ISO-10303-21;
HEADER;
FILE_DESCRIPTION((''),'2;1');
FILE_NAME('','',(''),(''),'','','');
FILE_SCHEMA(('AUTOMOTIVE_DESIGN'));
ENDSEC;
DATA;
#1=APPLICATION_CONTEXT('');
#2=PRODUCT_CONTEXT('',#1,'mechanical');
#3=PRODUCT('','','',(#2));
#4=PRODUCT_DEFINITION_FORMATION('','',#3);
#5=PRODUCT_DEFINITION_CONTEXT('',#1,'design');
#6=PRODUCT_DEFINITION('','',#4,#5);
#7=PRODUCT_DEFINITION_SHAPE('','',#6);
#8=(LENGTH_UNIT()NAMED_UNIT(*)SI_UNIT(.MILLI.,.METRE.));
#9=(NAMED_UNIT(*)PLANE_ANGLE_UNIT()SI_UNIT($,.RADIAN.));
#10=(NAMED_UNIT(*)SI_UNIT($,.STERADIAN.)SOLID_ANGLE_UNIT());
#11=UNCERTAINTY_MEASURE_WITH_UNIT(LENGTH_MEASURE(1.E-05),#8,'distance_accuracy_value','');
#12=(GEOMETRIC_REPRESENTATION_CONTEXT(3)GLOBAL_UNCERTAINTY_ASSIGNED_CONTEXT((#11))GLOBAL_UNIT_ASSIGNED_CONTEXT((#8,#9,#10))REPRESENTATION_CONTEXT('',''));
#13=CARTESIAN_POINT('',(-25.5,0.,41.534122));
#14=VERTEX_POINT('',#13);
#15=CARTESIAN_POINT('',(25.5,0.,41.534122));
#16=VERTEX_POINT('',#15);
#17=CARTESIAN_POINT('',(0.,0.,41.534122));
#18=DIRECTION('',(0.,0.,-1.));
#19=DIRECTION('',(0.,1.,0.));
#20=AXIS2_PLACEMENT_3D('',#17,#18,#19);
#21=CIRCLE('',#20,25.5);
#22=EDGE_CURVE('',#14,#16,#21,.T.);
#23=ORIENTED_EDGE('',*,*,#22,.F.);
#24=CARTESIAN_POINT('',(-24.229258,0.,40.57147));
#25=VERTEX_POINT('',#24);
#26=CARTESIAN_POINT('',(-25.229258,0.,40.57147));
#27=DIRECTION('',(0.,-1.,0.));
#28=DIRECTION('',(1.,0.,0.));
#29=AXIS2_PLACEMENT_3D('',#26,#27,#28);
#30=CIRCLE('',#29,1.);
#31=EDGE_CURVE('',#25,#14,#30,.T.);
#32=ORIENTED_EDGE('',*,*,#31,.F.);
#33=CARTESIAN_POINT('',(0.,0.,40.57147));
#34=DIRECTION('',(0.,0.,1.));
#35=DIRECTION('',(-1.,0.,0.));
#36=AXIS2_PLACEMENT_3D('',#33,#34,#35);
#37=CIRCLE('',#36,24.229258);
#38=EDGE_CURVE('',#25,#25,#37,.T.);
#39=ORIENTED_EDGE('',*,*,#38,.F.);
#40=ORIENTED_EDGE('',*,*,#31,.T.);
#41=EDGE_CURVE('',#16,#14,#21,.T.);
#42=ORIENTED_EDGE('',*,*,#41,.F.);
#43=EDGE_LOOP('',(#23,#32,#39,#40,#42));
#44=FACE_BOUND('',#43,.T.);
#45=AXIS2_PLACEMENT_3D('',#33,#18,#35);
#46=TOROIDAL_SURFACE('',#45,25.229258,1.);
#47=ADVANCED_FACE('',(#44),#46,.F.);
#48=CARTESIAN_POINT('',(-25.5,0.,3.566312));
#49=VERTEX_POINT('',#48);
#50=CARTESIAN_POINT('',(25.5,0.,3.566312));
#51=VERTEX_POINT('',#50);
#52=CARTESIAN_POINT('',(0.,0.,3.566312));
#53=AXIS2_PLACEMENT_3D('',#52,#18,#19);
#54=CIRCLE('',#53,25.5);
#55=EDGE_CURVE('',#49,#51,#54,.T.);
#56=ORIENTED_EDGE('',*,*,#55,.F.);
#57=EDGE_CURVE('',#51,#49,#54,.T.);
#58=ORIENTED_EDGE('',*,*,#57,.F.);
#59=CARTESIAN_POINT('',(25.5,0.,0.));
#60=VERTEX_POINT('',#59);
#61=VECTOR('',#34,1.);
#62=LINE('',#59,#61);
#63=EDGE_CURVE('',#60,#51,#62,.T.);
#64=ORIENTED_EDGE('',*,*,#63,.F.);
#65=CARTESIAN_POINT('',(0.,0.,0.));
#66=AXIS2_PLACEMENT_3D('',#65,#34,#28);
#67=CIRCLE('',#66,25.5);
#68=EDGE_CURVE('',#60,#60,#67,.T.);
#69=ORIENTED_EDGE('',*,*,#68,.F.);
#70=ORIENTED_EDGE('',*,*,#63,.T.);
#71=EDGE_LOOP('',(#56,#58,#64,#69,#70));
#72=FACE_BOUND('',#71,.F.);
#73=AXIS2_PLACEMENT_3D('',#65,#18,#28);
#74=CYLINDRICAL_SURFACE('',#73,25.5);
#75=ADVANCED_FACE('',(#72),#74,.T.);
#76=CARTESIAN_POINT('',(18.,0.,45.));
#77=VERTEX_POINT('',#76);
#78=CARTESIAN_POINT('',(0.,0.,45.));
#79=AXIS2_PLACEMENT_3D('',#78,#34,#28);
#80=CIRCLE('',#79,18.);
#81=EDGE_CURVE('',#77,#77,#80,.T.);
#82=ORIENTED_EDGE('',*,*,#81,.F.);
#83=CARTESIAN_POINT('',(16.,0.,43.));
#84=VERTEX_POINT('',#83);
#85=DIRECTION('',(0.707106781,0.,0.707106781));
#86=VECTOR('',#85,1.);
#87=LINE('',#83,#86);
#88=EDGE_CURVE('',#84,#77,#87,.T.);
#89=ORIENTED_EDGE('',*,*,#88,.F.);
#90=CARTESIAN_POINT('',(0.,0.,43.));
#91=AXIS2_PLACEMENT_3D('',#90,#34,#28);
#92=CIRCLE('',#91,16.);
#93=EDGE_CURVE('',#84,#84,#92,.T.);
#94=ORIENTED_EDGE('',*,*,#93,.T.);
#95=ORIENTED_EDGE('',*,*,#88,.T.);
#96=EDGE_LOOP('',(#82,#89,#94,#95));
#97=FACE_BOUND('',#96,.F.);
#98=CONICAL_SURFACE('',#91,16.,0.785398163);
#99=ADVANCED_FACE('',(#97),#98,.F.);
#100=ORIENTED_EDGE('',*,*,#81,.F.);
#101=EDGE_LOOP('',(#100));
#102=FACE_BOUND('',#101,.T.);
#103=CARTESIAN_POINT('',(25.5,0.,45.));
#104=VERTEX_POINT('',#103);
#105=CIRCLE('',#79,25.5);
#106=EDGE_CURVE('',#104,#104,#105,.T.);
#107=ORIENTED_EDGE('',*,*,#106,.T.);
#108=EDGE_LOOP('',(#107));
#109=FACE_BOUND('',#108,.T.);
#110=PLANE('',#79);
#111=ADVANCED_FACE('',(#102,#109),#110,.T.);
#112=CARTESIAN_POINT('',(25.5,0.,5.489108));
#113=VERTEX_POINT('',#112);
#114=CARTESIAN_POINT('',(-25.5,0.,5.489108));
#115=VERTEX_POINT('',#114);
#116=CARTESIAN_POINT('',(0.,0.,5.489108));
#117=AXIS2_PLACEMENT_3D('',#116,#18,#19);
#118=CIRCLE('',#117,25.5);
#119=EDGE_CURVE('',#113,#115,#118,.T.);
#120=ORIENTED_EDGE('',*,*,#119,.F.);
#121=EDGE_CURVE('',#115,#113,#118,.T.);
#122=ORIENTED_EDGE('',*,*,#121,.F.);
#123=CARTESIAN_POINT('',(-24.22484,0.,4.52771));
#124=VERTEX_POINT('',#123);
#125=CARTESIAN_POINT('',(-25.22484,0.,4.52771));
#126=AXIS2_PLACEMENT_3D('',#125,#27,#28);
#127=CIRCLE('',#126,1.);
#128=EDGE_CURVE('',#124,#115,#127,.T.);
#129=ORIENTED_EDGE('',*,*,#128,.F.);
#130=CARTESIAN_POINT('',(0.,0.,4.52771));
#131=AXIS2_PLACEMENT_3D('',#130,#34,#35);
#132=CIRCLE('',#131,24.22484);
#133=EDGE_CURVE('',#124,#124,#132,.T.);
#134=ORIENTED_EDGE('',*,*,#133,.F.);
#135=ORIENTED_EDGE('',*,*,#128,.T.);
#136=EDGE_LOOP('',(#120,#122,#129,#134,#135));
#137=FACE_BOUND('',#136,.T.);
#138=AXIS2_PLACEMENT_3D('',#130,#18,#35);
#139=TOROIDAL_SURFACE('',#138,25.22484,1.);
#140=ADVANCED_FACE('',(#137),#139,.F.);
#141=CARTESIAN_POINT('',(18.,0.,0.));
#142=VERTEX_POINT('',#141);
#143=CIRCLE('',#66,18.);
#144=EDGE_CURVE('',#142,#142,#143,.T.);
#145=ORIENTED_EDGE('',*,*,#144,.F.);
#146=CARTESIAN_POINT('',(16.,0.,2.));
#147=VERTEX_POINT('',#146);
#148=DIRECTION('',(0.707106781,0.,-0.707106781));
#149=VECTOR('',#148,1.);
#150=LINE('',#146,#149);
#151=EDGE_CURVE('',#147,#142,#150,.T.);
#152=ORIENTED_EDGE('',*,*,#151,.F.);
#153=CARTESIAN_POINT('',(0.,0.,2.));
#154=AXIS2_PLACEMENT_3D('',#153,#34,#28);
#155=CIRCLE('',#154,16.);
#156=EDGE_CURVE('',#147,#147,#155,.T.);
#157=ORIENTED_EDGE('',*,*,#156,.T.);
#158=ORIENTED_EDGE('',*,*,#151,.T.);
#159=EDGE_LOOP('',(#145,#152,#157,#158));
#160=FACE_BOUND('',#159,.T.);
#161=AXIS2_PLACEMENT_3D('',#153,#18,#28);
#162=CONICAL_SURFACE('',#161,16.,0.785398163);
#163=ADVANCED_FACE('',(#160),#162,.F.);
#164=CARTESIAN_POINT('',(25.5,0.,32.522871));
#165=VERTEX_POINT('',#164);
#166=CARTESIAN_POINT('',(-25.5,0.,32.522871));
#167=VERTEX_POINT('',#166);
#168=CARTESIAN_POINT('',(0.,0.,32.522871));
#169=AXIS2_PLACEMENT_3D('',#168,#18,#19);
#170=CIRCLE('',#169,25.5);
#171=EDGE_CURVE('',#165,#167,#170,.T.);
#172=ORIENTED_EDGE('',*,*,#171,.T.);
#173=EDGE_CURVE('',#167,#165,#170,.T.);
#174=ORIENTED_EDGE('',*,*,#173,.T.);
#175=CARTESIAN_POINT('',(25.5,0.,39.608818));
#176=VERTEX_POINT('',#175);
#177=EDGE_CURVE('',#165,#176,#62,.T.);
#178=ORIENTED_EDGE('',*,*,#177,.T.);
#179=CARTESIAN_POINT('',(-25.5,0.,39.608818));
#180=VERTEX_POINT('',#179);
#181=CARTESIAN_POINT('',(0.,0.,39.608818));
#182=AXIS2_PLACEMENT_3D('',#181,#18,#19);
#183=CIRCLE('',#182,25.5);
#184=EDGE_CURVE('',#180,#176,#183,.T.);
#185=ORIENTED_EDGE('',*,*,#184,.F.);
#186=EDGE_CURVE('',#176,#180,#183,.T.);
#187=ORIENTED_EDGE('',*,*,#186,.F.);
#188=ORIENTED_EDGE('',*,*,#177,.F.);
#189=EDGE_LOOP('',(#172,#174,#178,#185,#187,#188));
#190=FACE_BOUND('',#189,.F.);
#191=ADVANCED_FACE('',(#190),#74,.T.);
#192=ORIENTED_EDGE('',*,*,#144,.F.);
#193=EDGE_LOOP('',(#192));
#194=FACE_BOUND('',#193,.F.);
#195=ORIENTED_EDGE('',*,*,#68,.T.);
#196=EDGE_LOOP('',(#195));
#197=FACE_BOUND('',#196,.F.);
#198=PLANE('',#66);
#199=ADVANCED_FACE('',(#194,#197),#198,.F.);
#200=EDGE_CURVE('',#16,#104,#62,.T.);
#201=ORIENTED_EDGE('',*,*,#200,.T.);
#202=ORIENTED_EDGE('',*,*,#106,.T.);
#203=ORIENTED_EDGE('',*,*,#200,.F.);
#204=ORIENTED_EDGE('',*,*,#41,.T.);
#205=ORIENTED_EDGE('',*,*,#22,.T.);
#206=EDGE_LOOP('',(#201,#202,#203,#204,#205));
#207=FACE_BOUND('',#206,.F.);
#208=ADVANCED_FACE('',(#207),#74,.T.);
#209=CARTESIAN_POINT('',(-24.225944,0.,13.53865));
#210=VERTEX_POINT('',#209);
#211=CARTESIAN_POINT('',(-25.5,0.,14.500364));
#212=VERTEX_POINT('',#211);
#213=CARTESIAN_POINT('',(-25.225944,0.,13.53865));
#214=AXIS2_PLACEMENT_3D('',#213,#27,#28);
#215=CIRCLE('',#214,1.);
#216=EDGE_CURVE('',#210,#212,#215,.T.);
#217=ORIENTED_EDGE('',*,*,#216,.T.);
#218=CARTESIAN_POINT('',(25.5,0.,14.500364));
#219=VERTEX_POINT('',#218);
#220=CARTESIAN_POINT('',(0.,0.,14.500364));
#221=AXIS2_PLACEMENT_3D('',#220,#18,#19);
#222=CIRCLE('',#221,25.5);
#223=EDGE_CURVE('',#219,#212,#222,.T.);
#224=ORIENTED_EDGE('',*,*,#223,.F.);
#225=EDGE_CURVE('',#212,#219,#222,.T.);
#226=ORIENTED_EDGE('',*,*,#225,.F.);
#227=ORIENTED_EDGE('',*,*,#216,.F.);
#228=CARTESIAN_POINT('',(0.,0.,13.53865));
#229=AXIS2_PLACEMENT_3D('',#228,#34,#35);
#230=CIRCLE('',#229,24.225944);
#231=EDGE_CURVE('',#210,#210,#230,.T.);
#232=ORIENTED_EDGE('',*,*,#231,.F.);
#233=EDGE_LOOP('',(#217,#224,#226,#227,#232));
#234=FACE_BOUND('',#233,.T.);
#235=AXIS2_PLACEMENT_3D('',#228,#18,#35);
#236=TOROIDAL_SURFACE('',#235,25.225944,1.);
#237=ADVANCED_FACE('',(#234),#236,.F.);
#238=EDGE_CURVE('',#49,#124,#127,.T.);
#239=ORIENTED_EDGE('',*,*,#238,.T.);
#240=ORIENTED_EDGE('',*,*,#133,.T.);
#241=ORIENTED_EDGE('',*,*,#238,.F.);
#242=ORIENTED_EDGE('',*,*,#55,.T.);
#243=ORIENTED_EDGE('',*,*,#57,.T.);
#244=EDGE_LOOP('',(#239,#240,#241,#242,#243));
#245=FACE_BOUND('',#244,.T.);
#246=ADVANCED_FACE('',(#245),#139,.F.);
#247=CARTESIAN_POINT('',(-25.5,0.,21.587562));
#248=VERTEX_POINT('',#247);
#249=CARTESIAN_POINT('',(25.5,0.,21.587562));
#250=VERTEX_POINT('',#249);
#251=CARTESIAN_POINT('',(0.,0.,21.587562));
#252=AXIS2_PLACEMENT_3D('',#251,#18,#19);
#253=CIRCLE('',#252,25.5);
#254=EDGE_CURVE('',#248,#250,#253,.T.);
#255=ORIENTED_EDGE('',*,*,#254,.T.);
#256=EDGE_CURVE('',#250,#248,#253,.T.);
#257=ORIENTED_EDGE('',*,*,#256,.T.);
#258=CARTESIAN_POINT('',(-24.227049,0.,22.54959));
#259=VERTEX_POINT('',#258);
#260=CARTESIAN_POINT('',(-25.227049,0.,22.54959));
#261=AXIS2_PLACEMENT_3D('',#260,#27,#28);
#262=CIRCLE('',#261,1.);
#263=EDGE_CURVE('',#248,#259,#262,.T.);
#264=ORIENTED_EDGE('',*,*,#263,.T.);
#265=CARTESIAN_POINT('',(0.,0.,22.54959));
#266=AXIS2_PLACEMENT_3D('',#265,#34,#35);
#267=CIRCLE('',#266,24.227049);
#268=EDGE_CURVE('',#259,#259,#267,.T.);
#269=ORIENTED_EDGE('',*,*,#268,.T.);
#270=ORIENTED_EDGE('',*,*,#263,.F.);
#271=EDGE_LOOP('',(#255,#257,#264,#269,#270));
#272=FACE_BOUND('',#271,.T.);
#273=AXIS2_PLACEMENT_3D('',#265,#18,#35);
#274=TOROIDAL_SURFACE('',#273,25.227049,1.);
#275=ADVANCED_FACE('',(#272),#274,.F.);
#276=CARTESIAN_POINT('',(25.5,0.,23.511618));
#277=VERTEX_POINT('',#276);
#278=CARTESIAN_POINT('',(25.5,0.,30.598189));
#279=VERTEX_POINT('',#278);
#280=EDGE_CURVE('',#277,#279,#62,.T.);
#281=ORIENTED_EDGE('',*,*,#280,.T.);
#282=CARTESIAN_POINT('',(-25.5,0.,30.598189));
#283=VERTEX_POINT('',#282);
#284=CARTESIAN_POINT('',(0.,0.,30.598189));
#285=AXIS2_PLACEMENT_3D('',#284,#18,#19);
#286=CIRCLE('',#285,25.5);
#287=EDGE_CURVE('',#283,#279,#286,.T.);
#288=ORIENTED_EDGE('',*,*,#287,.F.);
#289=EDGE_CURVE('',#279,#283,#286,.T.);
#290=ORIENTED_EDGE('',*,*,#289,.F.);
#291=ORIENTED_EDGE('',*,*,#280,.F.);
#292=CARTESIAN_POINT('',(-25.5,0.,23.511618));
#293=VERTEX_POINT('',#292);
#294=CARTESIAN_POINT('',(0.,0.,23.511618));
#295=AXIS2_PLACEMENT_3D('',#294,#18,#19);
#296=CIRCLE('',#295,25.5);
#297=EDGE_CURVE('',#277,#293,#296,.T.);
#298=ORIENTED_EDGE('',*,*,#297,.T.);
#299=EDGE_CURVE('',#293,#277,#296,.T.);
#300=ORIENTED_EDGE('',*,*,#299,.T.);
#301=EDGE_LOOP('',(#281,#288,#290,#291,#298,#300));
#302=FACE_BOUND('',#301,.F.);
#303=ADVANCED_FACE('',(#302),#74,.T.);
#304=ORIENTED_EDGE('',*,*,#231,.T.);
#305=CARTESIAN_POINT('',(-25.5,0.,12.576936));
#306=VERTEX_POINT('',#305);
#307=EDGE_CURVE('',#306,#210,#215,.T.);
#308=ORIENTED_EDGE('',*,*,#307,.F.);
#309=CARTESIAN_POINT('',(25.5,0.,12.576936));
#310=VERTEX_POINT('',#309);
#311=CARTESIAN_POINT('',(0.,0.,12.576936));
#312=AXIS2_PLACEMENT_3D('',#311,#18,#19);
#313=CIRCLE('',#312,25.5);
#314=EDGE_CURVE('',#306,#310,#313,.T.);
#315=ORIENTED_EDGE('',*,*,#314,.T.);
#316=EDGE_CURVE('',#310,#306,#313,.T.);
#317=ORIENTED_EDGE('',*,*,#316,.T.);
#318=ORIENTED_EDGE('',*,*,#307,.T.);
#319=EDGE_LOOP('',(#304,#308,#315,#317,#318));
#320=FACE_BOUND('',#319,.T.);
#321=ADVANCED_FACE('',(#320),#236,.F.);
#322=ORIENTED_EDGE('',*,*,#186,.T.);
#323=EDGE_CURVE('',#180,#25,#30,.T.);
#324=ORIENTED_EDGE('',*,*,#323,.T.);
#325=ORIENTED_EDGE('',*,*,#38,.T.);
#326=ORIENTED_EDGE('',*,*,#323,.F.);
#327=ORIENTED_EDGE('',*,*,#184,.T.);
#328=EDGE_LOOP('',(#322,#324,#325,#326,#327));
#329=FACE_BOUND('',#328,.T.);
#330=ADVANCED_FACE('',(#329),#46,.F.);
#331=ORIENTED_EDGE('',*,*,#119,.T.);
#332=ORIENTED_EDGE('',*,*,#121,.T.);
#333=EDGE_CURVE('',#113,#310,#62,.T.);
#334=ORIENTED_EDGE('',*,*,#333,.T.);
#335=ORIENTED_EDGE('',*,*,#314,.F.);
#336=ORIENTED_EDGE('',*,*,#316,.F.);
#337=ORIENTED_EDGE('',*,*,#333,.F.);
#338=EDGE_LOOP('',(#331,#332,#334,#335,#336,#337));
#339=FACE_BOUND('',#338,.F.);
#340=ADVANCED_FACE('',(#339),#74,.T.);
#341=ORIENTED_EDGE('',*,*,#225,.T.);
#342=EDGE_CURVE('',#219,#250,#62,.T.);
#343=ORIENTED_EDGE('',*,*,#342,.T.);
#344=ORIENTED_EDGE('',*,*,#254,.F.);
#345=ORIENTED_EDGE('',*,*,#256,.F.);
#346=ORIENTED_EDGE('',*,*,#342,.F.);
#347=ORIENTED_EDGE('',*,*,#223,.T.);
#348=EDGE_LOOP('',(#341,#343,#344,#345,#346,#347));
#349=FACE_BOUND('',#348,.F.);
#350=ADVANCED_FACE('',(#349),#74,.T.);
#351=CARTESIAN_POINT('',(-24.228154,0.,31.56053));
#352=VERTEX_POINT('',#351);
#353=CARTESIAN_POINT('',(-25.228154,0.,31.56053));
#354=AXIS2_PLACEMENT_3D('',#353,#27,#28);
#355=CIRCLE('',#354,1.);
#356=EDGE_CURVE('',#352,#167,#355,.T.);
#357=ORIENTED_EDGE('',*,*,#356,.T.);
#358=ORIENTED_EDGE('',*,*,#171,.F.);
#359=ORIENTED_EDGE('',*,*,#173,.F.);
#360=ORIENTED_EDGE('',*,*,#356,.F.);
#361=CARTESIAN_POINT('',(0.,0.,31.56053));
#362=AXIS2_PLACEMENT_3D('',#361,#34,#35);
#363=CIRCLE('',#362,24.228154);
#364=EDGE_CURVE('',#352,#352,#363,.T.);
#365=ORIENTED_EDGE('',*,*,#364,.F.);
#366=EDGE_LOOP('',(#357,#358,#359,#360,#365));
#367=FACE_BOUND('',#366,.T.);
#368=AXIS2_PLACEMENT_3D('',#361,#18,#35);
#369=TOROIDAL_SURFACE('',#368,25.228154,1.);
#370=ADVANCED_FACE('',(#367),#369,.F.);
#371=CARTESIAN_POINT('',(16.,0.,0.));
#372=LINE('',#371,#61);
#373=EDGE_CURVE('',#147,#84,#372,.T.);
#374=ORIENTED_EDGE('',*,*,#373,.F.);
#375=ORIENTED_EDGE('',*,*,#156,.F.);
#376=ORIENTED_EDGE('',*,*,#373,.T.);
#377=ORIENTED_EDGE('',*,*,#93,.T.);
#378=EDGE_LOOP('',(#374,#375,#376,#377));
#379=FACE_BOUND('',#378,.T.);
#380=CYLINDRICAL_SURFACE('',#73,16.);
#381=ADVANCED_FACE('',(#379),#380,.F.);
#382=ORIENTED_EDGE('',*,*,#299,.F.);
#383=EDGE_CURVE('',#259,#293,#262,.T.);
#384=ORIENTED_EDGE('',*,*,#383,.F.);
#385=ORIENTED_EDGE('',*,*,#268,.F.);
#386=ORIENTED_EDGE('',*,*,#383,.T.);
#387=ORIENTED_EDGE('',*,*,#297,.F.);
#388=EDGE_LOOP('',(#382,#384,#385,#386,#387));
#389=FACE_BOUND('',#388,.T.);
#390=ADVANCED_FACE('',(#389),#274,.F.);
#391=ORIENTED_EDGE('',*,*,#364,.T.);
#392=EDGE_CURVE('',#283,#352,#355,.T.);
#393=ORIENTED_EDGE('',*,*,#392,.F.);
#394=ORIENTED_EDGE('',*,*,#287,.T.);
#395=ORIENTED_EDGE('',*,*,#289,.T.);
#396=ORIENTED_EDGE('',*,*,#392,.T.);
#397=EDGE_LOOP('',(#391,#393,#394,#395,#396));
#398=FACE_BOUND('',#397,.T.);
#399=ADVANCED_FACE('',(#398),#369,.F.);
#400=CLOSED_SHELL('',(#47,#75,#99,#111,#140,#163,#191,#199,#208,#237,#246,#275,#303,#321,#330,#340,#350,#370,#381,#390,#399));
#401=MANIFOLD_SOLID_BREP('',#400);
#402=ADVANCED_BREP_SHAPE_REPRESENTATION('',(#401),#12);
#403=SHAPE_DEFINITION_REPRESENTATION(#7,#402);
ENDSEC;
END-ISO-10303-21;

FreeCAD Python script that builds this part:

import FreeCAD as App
import Part
import Sketcher
Q = App.Units.Quantity


def edges_at(feature, points):
    """Names of the edges that pass closest to the given points."""
    edges = feature.Shape.Edges
    near = lambda p: min(range(len(edges)), key=lambda i: edges[i].distToShape(Part.Vertex(*p))[0])
    return sorted({f"Edge{near(p) + 1}" for p in points})

doc = App.newDocument("Part")
body = doc.addObject("PartDesign::Body", "Body")

sketch1 = body.newObject("Sketcher::SketchObject", "Sketch")
sketch1.AttachmentSupport = (doc.getObject("XY_Plane"), [""])
sketch1.MapMode = "FlatFace"
sketch1.addGeometry(Part.Circle(App.Vector(0, 0, 0), App.Vector(0, 0, 1), 26), False)
sketch1.addGeometry(Part.Circle(App.Vector(0, 0, 0), App.Vector(0, 0, 1), 16), False)
sketch1.addConstraint(Sketcher.Constraint("Coincident", 0, 3, -1, 1))
sketch1.addConstraint(Sketcher.Constraint("Coincident", 1, 3, -1, 1))
sketch1.addConstraint(Sketcher.Constraint("Diameter", 0, Q("51 mm")))
sketch1.addConstraint(Sketcher.Constraint("Diameter", 1, Q("32 mm")))
pad1 = body.newObject("PartDesign::Pad", "Pad")
pad1.Profile = sketch1
pad1.Length = 45
doc.recompute()

chamfer = body.newObject("PartDesign::Chamfer", "Chamfer")
chamfer.Base = (pad1, edges_at(pad1, [(-16, 0, 45), (-16, 0, 0)]))
chamfer.Size = 2

sketch2 = body.newObject("Sketcher::SketchObject", "Sketch001")
sketch2.AttachmentSupport = (doc.getObject("XZ_Plane"), [""])
sketch2.MapMode = "FlatFace"
sketch2.addGeometry(Part.Circle(App.Vector(-25.2, 40.6, 0), App.Vector(0, 0, 1), 1), False)
sketch2.addGeometry(Part.Circle(App.Vector(-25.2, 31.6, 0), App.Vector(0, 0, 1), 1), False)
sketch2.addGeometry(Part.Circle(App.Vector(-25.2, 22.5, 0), App.Vector(0, 0, 1), 1), False)
sketch2.addGeometry(Part.Circle(App.Vector(-25.2, 13.5, 0), App.Vector(0, 0, 1), 1), False)
sketch2.addGeometry(Part.Circle(App.Vector(-25.2, 4.5, 0), App.Vector(0, 0, 1), 1), False)
sketch2.addConstraint(Sketcher.Constraint("Equal", 0, 1))
sketch2.addConstraint(Sketcher.Constraint("Equal", 1, 2))
sketch2.addConstraint(Sketcher.Constraint("Equal", 2, 3))
sketch2.addConstraint(Sketcher.Constraint("Equal", 3, 4))
sketch2.addConstraint(Sketcher.Constraint("Diameter", 0, Q("2 mm")))
sketch2.addConstraint(Sketcher.Constraint("DistanceX", 0, 3, -1, 1, Q("25.229258 mm")))
sketch2.addConstraint(Sketcher.Constraint("DistanceY", -1, 1, 0, 3, Q("40.57147 mm")))
sketch2.addConstraint(Sketcher.Constraint("DistanceY", -1, 1, 1, 3, Q("31.56053 mm")))
sketch2.addConstraint(Sketcher.Constraint("DistanceX", 2, 3, -1, 1, Q("25.227049 mm")))
sketch2.addConstraint(Sketcher.Constraint("DistanceY", -1, 1, 2, 3, Q("22.54959 mm")))
sketch2.addConstraint(Sketcher.Constraint("DistanceY", -1, 1, 3, 3, Q("13.53865 mm")))
sketch2.addConstraint(Sketcher.Constraint("DistanceX", 4, 3, -1, 1, Q("25.22484 mm")))
sketch2.addConstraint(Sketcher.Constraint("DistanceY", -1, 1, 4, 3, Q("4.52771 mm")))
sketch2.addConstraint(Sketcher.Constraint("DistanceX", 1, 3, 3, 3, Q("0.00221 mm")))
sketch2.addConstraint(Sketcher.Constraint("DistanceX", 1, 3, -1, 1, Q("25.228154 mm")))
groove = body.newObject("PartDesign::Groove", "Groove")
groove.Profile = sketch2
groove.ReferenceAxis = (sketch2, ["V_Axis"])
groove.Angle = 360

doc.recompute()
